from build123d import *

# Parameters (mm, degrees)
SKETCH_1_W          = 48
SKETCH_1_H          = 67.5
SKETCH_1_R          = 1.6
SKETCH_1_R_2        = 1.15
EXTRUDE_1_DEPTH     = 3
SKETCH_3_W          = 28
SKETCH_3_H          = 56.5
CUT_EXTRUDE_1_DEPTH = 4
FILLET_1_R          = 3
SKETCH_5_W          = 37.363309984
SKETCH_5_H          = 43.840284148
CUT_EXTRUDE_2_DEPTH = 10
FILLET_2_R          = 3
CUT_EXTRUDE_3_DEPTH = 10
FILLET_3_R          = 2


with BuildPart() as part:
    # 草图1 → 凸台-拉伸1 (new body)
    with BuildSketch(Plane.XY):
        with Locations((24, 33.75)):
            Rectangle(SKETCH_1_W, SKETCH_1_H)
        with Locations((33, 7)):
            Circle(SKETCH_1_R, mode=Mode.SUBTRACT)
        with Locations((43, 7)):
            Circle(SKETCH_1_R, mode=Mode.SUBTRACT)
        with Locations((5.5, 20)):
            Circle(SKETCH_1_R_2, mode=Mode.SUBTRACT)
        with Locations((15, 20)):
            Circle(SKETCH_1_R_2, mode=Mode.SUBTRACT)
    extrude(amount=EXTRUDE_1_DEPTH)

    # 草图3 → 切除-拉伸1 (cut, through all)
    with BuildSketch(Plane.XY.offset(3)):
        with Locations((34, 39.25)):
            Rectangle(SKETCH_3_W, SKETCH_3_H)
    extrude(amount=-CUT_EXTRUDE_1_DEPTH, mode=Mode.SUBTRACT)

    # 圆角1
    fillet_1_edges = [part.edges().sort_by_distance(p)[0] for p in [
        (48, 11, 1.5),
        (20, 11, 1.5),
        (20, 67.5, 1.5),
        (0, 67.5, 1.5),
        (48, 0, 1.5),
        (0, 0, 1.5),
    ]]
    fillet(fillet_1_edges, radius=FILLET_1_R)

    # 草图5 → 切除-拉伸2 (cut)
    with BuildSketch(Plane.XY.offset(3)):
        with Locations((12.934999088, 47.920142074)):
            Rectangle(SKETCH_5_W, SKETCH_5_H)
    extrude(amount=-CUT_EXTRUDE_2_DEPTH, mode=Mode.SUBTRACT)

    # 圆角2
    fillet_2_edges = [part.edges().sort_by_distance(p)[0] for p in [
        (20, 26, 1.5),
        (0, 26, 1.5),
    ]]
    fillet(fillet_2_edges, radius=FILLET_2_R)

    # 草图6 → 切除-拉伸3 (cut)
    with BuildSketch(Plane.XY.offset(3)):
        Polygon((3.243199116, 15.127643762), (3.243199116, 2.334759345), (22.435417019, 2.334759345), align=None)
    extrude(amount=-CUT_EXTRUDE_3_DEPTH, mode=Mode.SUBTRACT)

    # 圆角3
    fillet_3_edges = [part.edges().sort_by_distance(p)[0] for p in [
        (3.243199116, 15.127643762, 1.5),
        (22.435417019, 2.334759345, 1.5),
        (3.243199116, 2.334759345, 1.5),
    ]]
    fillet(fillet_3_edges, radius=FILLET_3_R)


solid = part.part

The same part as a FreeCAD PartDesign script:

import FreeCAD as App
import Part
import Sketcher
from FreeCAD import Vector


def edges_at(feature, points):
    """Names of the edges that pass closest to the given points."""
    edges = feature.Shape.Edges
    near = lambda p: min(range(len(edges)), key=lambda i: edges[i].distToShape(Part.Vertex(*p))[0])
    return sorted({f"Edge{near(p) + 1}" for p in points})

doc = App.newDocument("Part")
body = doc.addObject("PartDesign::Body", "Body")

# Sketch on XY plane
sketch1 = body.newObject("Sketcher::SketchObject", "Sketch")
sketch1.AttachmentSupport = (doc.getObject("XY_Plane"), [""])
sketch1.MapMode = "FlatFace"
sketch1.addGeometry([
    Part.LineSegment(Vector(0, 67.5, 0), Vector(0, 0, 0)),  # 0
    Part.LineSegment(Vector(0, 0, 0), Vector(48, 0, 0)),  # 1
    Part.LineSegment(Vector(48, 0, 0), Vector(48, 67.5, 0)),  # 2
    Part.LineSegment(Vector(48, 67.5, 0), Vector(0, 67.5, 0)),  # 3
    Part.Circle(Vector(33, 7, 0), Vector(0, 0, 1), 1.6),  # 4
    Part.Circle(Vector(43, 7, 0), Vector(0, 0, 1), 1.6),  # 5
    Part.Circle(Vector(5.5, 20, 0), Vector(0, 0, 1), 1.15),  # 6
    Part.Circle(Vector(15, 20, 0), Vector(0, 0, 1), 1.15),  # 7
], False)
sketch1.addConstraint([
    Sketcher.Constraint("Coincident", 0, 2, 1, 1),
    Sketcher.Constraint("Coincident", 1, 2, 2, 1),
    Sketcher.Constraint("Coincident", 2, 2, 3, 1),
    Sketcher.Constraint("Coincident", 3, 2, 0, 1),
    Sketcher.Constraint("Vertical", 0),
    Sketcher.Constraint("Horizontal", 1),
    Sketcher.Constraint("Vertical", 2),
    Sketcher.Constraint("Horizontal", 3),
    Sketcher.Constraint("Coincident", 0, 2, -1, 1),
    Sketcher.Constraint("Equal", 4, 5),
    Sketcher.Constraint("Equal", 6, 7),
    Sketcher.Constraint("Horizontal", 4, 3, 5, 3),
    Sketcher.Constraint("Horizontal", 6, 3, 7, 3),
    Sketcher.Constraint("Diameter", 4, 3.2),
    Sketcher.Constraint("Diameter", 6, 2.3),
    Sketcher.Constraint("DistanceX", 1, 1, 1, 2, 48.0),
    Sketcher.Constraint("DistanceY", 0, 2, 0, 1, 67.5),
    Sketcher.Constraint("DistanceX", -1, 1, 4, 3, 33.0),
    Sketcher.Constraint("DistanceY", -1, 1, 4, 3, 7.0),
    Sketcher.Constraint("DistanceX", -1, 1, 5, 3, 43.0),
    Sketcher.Constraint("DistanceY", -1, 1, 6, 3, 20.0),
    Sketcher.Constraint("DistanceX", -1, 1, 7, 3, 15.0),
    Sketcher.Constraint("DistanceX", -1, 1, 6, 3, 5.5),
])
pad1 = body.newObject("PartDesign::Pad", "Pad")
pad1.Profile = sketch1
pad1.Length = 3

# Sketch on XY plane
sketch2 = body.newObject("Sketcher::SketchObject", "Sketch001")
sketch2.AttachmentSupport = (doc.getObject("XY_Plane"), [""])
sketch2.MapMode = "FlatFace"
sketch2.AttachmentOffset = App.Placement(Vector(0, 0, 3), App.Rotation())
sketch2.addGeometry([
    Part.LineSegment(Vector(20, 67.5, 0), Vector(20, 11, 0)),
    Part.LineSegment(Vector(20, 11, 0), Vector(48, 11, 0)),
    Part.LineSegment(Vector(48, 11, 0), Vector(48, 67.5, 0)),
    Part.LineSegment(Vector(48, 67.5, 0), Vector(20, 67.5, 0)),
], False)
sketch2.addConstraint([
    Sketcher.Constraint("Coincident", 0, 2, 1, 1),
    Sketcher.Constraint("Coincident", 1, 2, 2, 1),
    Sketcher.Constraint("Coincident", 2, 2, 3, 1),
    Sketcher.Constraint("Coincident", 3, 2, 0, 1),
    Sketcher.Constraint("Vertical", 0),
    Sketcher.Constraint("Horizontal", 1),
    Sketcher.Constraint("Vertical", 2),
    Sketcher.Constraint("Horizontal", 3),
    Sketcher.Constraint("DistanceX", 1, 1, 1, 2, 28.0),
    Sketcher.Constraint("DistanceY", 0, 2, 0, 1, 56.5),
    Sketcher.Constraint("DistanceX", -1, 1, 0, 2, 20.0),
    Sketcher.Constraint("DistanceY", -1, 1, 0, 2, 11.0),
])
pocket1 = body.newObject("PartDesign::Pocket", "Pocket")
pocket1.Profile = sketch2
pocket1.Type = "ThroughAll"
doc.recompute()

fillet = body.newObject("PartDesign::Fillet", "Fillet")
fillet.Base = (pocket1, edges_at(pocket1, [
    (48, 11, 1.5),
    (20, 11, 1.5),
    (20, 67.5, 1.5),
    (0, 67.5, 1.5),
    (48, 0, 1.5),
    (0, 0, 1.5),
]))
fillet.Radius = 3

# Sketch on XY plane
sketch3 = body.newObject("Sketcher::SketchObject", "Sketch002")
sketch3.AttachmentSupport = (doc.getObject("XY_Plane"), [""])
sketch3.MapMode = "FlatFace"
sketch3.AttachmentOffset = App.Placement(Vector(0, 0, 3), App.Rotation())
sketch3.addGeometry([
    Part.LineSegment(Vector(-5.746656, 69.840284, 0), Vector(-5.746656, 26, 0)),
    Part.LineSegment(Vector(-5.746656, 26, 0), Vector(31.616654, 26, 0)),
    Part.LineSegment(Vector(31.616654, 26, 0), Vector(31.616654, 69.840284, 0)),
    Part.LineSegment(Vector(31.616654, 69.840284, 0), Vector(-5.746656, 69.840284, 0)),
], False)
sketch3.addConstraint([
    Sketcher.Constraint("Coincident", 0, 2, 1, 1),
    Sketcher.Constraint("Coincident", 1, 2, 2, 1),
    Sketcher.Constraint("Coincident", 2, 2, 3, 1),
    Sketcher.Constraint("Coincident", 3, 2, 0, 1),
    Sketcher.Constraint("Vertical", 0),
    Sketcher.Constraint("Horizontal", 1),
    Sketcher.Constraint("Vertical", 2),
    Sketcher.Constraint("Horizontal", 3),
    Sketcher.Constraint("DistanceY", -1, 1, 0, 2, 26.0),
    Sketcher.Constraint("DistanceX", 1, 1, 1, 2, 37.36331),
    Sketcher.Constraint("DistanceY", 0, 2, 0, 1, 43.840284),
    Sketcher.Constraint("DistanceX", 0, 2, -1, 1, 5.746656),
])
pocket2 = body.newObject("PartDesign::Pocket", "Pocket001")
pocket2.Profile = sketch3
pocket2.Length = 10
doc.recompute()

fillet2 = body.newObject("PartDesign::Fillet", "Fillet001")
fillet2.Base = (pocket2, edges_at(pocket2, [(20, 26, 1.5), (0, 26, 1.5)]))
fillet2.Radius = 3

# Sketch on XY plane
sketch4 = body.newObject("Sketcher::SketchObject", "Sketch003")
sketch4.AttachmentSupport = (doc.getObject("XY_Plane"), [""])
sketch4.MapMode = "FlatFace"
sketch4.AttachmentOffset = App.Placement(Vector(0, 0, 3), App.Rotation())
sketch4.addGeometry([
    Part.LineSegment(Vector(3.243199, 15.127644, 0), Vector(3.243199, 2.334759, 0)),
    Part.LineSegment(Vector(3.243199, 2.334759, 0), Vector(22.435417, 2.334759, 0)),
    Part.LineSegment(Vector(22.435417, 2.334759, 0), Vector(3.243199, 15.127644, 0)),
], False)
sketch4.addConstraint([
    Sketcher.Constraint("Coincident", 0, 2, 1, 1),
    Sketcher.Constraint("Coincident", 1, 2, 2, 1),
    Sketcher.Constraint("Coincident", 2, 2, 0, 1),
    Sketcher.Constraint("Vertical", 0),
    Sketcher.Constraint("Horizontal", 1),
    Sketcher.Constraint("DistanceX", -1, 1, 0, 2, 3.243199),
    Sketcher.Constraint("DistanceX", 1, 1, 1, 2, 19.192218),
    Sketcher.Constraint("DistanceY", 0, 2, 0, 1, 12.792884),
    Sketcher.Constraint("DistanceY", -1, 1, 0, 2, 2.334759),
])
pocket3 = body.newObject("PartDesign::Pocket", "Pocket002")
pocket3.Profile = sketch4
pocket3.Length = 10
doc.recompute()

fillet3 = body.newObject("PartDesign::Fillet", "Fillet002")
fillet3.Base = (pocket3, edges_at(pocket3, [(3.243, 15.128, 1.5), (22.435, 2.335, 1.5), (3.243, 2.335, 1.5)]))
fillet3.Radius = 2

doc.recompute()
